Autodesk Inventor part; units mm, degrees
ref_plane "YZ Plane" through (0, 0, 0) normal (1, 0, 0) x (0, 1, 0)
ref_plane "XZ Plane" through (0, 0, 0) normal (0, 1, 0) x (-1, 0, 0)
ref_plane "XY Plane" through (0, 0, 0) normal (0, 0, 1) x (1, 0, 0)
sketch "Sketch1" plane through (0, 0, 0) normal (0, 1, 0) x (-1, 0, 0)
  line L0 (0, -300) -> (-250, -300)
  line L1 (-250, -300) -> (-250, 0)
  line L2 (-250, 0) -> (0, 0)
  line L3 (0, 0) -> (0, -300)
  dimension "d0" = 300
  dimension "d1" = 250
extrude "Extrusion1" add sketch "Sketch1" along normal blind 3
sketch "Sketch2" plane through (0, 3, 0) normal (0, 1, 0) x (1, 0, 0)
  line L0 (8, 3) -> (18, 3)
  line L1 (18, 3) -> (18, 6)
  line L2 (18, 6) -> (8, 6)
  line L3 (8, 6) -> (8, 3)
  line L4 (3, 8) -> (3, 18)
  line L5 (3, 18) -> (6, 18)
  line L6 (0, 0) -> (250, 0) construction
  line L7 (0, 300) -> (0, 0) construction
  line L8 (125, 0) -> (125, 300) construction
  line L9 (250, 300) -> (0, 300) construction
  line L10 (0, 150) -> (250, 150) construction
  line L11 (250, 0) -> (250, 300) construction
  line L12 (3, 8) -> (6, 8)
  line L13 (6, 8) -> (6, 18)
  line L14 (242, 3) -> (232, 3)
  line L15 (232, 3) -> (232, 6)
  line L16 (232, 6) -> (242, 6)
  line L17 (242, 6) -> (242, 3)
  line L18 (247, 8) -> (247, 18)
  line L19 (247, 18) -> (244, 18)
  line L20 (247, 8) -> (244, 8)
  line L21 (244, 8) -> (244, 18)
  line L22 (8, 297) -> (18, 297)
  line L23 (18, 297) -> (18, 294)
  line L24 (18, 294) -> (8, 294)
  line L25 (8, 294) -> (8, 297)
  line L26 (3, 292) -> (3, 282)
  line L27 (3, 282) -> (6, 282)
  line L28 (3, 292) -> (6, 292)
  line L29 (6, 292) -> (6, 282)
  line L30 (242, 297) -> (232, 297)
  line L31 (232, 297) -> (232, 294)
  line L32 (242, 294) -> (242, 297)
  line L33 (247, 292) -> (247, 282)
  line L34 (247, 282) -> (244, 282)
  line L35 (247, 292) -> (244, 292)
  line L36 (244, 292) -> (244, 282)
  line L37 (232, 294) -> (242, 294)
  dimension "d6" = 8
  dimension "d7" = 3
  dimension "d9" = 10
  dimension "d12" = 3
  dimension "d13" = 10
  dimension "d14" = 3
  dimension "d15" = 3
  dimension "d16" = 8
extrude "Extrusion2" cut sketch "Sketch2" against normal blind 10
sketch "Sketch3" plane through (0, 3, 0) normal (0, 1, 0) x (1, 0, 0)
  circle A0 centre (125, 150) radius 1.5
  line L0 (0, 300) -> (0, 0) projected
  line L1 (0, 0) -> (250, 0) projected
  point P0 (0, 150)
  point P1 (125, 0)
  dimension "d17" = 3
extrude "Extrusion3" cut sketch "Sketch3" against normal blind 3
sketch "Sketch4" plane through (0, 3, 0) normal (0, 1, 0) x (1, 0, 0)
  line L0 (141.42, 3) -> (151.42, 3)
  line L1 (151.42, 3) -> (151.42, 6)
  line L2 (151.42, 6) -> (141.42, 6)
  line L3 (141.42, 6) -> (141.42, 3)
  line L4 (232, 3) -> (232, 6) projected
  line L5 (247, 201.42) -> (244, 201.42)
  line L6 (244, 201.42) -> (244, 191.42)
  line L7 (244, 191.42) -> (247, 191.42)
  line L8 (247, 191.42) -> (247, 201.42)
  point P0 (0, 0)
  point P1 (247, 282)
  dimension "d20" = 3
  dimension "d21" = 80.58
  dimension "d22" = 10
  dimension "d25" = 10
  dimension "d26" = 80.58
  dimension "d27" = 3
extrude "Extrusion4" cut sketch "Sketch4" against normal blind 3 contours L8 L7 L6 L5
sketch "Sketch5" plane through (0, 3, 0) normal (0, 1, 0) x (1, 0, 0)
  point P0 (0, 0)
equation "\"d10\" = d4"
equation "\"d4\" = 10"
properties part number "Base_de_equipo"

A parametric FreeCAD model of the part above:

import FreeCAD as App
import Part
import Sketcher
from FreeCAD import Vector
Q = App.Units.Quantity

doc = App.newDocument("Part")
body = doc.addObject("PartDesign::Body", "Body")

sketch1 = doc.addObject("Sketcher::SketchObject", "Sketch")
body.addObject(sketch1)
sketch1.AttachmentSupport = (doc.XZ_Plane, [""])
sketch1.MapMode = "FlatFace"
sketch1.addGeometry([
    Part.LineSegment(Vector(250, -300, 0), Vector(0, -300, 0)),
    Part.LineSegment(Vector(0, -300, 0), Vector(0, 0, 0)),
    Part.LineSegment(Vector(0, 0, 0), Vector(250, 0, 0)),
    Part.LineSegment(Vector(250, 0, 0), Vector(250, -300, 0)),
], False)
sketch1.addConstraint([
    Sketcher.Constraint("Coincident", 0, 2, 1, 1),
    Sketcher.Constraint("Coincident", 1, 2, 2, 1),
    Sketcher.Constraint("Coincident", 2, 2, 3, 1),
    Sketcher.Constraint("Coincident", 3, 2, 0, 1),
    Sketcher.Constraint("Horizontal", 0),
    Sketcher.Constraint("Vertical", 1),
    Sketcher.Constraint("Horizontal", 2),
    Sketcher.Constraint("Vertical", 3),
    Sketcher.Constraint("Coincident", 1, 2, -1, 1),
    Sketcher.Constraint("DistanceX", 0, 2, 0, 1, Q("250 mm")),
    Sketcher.Constraint("DistanceY", 1, 1, 1, 2, Q("300 mm")),
])
pad1 = doc.addObject("PartDesign::Pad", "Pad")
body.addObject(pad1)
pad1.Profile = sketch1
pad1.Length = 3
pad1.Reversed = True

sketch2 = doc.addObject("Sketcher::SketchObject", "Sketch001")
body.addObject(sketch2)
sketch2.AttachmentSupport = (doc.XZ_Plane, [""])
sketch2.MapMode = "FlatFace"
sketch2.AttachmentOffset = App.Placement(Vector(0, 0, -3), App.Rotation())
sketch2.addGeometry([
    Part.LineSegment(Vector(8, -6, 0), Vector(8, -3, 0)),
    Part.LineSegment(Vector(8, -3, 0), Vector(18, -3, 0)),
    Part.LineSegment(Vector(18, -3, 0), Vector(18, -6, 0)),
    Part.LineSegment(Vector(18, -6, 0), Vector(8, -6, 0)),
    Part.LineSegment(Vector(3, -18, 0), Vector(3, -8, 0)),
    Part.LineSegment(Vector(3, -8, 0), Vector(6, -8, 0)),
    Part.LineSegment(Vector(6, -8, 0), Vector(6, -18, 0)),
    Part.LineSegment(Vector(6, -18, 0), Vector(3, -18, 0)),
    Part.LineSegment(Vector(232, -3, 0), Vector(242, -3, 0)),
    Part.LineSegment(Vector(242, -3, 0), Vector(242, -6, 0)),
    Part.LineSegment(Vector(242, -6, 0), Vector(232, -6, 0)),
    Part.LineSegment(Vector(232, -6, 0), Vector(232, -3, 0)),
    Part.LineSegment(Vector(244, -8, 0), Vector(247, -8, 0)),
    Part.LineSegment(Vector(247, -8, 0), Vector(247, -18, 0)),
    Part.LineSegment(Vector(247, -18, 0), Vector(244, -18, 0)),
    Part.LineSegment(Vector(244, -18, 0), Vector(244, -8, 0)),
    Part.LineSegment(Vector(18, -297, 0), Vector(8, -297, 0)),
    Part.LineSegment(Vector(8, -297, 0), Vector(8, -294, 0)),
    Part.LineSegment(Vector(8, -294, 0), Vector(18, -294, 0)),
    Part.LineSegment(Vector(18, -294, 0), Vector(18, -297, 0)),
    Part.LineSegment(Vector(6, -292, 0), Vector(3, -292, 0)),
    Part.LineSegment(Vector(3, -292, 0), Vector(3, -282, 0)),
    Part.LineSegment(Vector(3, -282, 0), Vector(6, -282, 0)),
    Part.LineSegment(Vector(6, -282, 0), Vector(6, -292, 0)),
    Part.LineSegment(Vector(242, -294, 0), Vector(242, -297, 0)),
    Part.LineSegment(Vector(242, -297, 0), Vector(232, -297, 0)),
    Part.LineSegment(Vector(232, -297, 0), Vector(232, -294, 0)),
    Part.LineSegment(Vector(232, -294, 0), Vector(242, -294, 0)),
    Part.LineSegment(Vector(247, -282, 0), Vector(247, -292, 0)),
    Part.LineSegment(Vector(247, -292, 0), Vector(244, -292, 0)),
    Part.LineSegment(Vector(244, -292, 0), Vector(244, -282, 0)),
    Part.LineSegment(Vector(244, -282, 0), Vector(247, -282, 0)),
], False)
sketch2.addConstraint([
    Sketcher.Constraint("Coincident", 0, 2, 1, 1),
    Sketcher.Constraint("Coincident", 1, 2, 2, 1),
    Sketcher.Constraint("Coincident", 2, 2, 3, 1),
    Sketcher.Constraint("Coincident", 3, 2, 0, 1),
    Sketcher.Constraint("Coincident", 4, 2, 5, 1),
    Sketcher.Constraint("Coincident", 5, 2, 6, 1),
    Sketcher.Constraint("Coincident", 6, 2, 7, 1),
    Sketcher.Constraint("Coincident", 7, 2, 4, 1),
    Sketcher.Constraint("Coincident", 8, 2, 9, 1),
    Sketcher.Constraint("Coincident", 9, 2, 10, 1),
    Sketcher.Constraint("Coincident", 10, 2, 11, 1),
    Sketcher.Constraint("Coincident", 11, 2, 8, 1),
    Sketcher.Constraint("Coincident", 12, 2, 13, 1),
    Sketcher.Constraint("Coincident", 13, 2, 14, 1),
    Sketcher.Constraint("Coincident", 14, 2, 15, 1),
    Sketcher.Constraint("Coincident", 15, 2, 12, 1),
    Sketcher.Constraint("Coincident", 16, 2, 17, 1),
    Sketcher.Constraint("Coincident", 17, 2, 18, 1),
    Sketcher.Constraint("Coincident", 18, 2, 19, 1),
    Sketcher.Constraint("Coincident", 19, 2, 16, 1),
    Sketcher.Constraint("Coincident", 20, 2, 21, 1),
    Sketcher.Constraint("Coincident", 21, 2, 22, 1),
    Sketcher.Constraint("Coincident", 22, 2, 23, 1),
    Sketcher.Constraint("Coincident", 23, 2, 20, 1),
    Sketcher.Constraint("Coincident", 24, 2, 25, 1),
    Sketcher.Constraint("Coincident", 25, 2, 26, 1),
    Sketcher.Constraint("Coincident", 26, 2, 27, 1),
    Sketcher.Constraint("Coincident", 27, 2, 24, 1),
    Sketcher.Constraint("Coincident", 28, 2, 29, 1),
    Sketcher.Constraint("Coincident", 29, 2, 30, 1),
    Sketcher.Constraint("Coincident", 30, 2, 31, 1),
    Sketcher.Constraint("Coincident", 31, 2, 28, 1),
    Sketcher.Constraint("Vertical", 0),
    Sketcher.Constraint("Horizontal", 1),
    Sketcher.Constraint("Vertical", 2),
    Sketcher.Constraint("Horizontal", 3),
    Sketcher.Constraint("Vertical", 4),
    Sketcher.Constraint("Horizontal", 5),
    Sketcher.Constraint("Vertical", 6),
    Sketcher.Constraint("Horizontal", 7),
    Sketcher.Constraint("Horizontal", 8),
    Sketcher.Constraint("Vertical", 9),
    Sketcher.Constraint("Horizontal", 10),
    Sketcher.Constraint("Vertical", 11),
    Sketcher.Constraint("Horizontal", 12),
    Sketcher.Constraint("Vertical", 13),
    Sketcher.Constraint("Horizontal", 14),
    Sketcher.Constraint("Vertical", 15),
    Sketcher.Constraint("Horizontal", 16),
    Sketcher.Constraint("Vertical", 17),
    Sketcher.Constraint("Horizontal", 18),
    Sketcher.Constraint("Vertical", 19),
    Sketcher.Constraint("Horizontal", 20),
    Sketcher.Constraint("Vertical", 21),
    Sketcher.Constraint("Horizontal", 22),
    Sketcher.Constraint("Vertical", 23),
    Sketcher.Constraint("Vertical", 24),
    Sketcher.Constraint("Horizontal", 25),
    Sketcher.Constraint("Vertical", 26),
    Sketcher.Constraint("Horizontal", 27),
    Sketcher.Constraint("Vertical", 28),
    Sketcher.Constraint("Horizontal", 29),
    Sketcher.Constraint("Vertical", 30),
    Sketcher.Constraint("Horizontal", 31),
    Sketcher.Constraint("Horizontal", 1, 2, 8, 2),
    Sketcher.Constraint("Horizontal", 3, 2, 9, 2),
    Sketcher.Constraint("Horizontal", 5, 2, 12, 2),
    Sketcher.Constraint("Horizontal", 7, 2, 13, 2),
    Sketcher.Constraint("Horizontal", 19, 2, 24, 2),
    Sketcher.Constraint("Horizontal", 18, 2, 26, 2),
    Sketcher.Constraint("Horizontal", 23, 2, 28, 2),
    Sketcher.Constraint("Horizontal", 22, 2, 30, 2),
    Sketcher.Constraint("Vertical", 3, 2, 16, 2),
    Sketcher.Constraint("Vertical", 2, 2, 18, 2),
    Sketcher.Constraint("Vertical", 7, 2, 20, 2),
    Sketcher.Constraint("Vertical", 6, 2, 22, 2),
    Sketcher.Constraint("Vertical", 9, 2, 24, 2),
    Sketcher.Constraint("Vertical", 11, 2, 25, 2),
    Sketcher.Constraint("Vertical", 13, 2, 28, 2),
    Sketcher.Constraint("Vertical", 15, 2, 29, 2),
    Sketcher.Constraint("Equal", 3, 8),
    Sketcher.Constraint("Equal", 7, 12),
    Sketcher.Constraint("Equal", 31, 0),
    Sketcher.Constraint("Equal", 27, 4),
    Sketcher.Constraint("Equal", 11, 17),
    Sketcher.Constraint("Equal", 15, 21),
    Sketcher.Constraint("DistanceX", 1, 1, 1, 2, Q("10 mm")),
    Sketcher.Constraint("DistanceX", 5, 1, 5, 2, Q("3 mm")),
    Sketcher.Constraint("DistanceX", -1, 1, 0, 2, Q("8 mm")),
    Sketcher.Constraint("DistanceY", 0, 2, -1, 1, Q("3 mm")),
    Sketcher.Constraint("DistanceX", -1, 1, 4, 2, Q("3 mm")),
    Sketcher.Constraint("DistanceY", 4, 2, -1, 1, Q("8 mm")),
    Sketcher.Constraint("DistanceX", -1, 1, 8, 2, Q("242 mm")),
    Sketcher.Constraint("DistanceX", -1, 1, 12, 2, Q("247 mm")),
    Sketcher.Constraint("DistanceY", 16, 2, -1, 1, Q("297 mm")),
    Sketcher.Constraint("DistanceY", 20, 2, -1, 1, Q("292 mm")),
])
pocket1 = doc.addObject("PartDesign::Pocket", "Pocket")
body.addObject(pocket1)
pocket1.Profile = sketch2
pocket1.Length = 10
pocket1.Reversed = True

sketch3 = doc.addObject("Sketcher::SketchObject", "Sketch002")
body.addObject(sketch3)
sketch3.AttachmentSupport = (doc.XZ_Plane, [""])
sketch3.MapMode = "FlatFace"
sketch3.AttachmentOffset = App.Placement(Vector(0, 0, -3), App.Rotation())
sketch3.addGeometry(Part.Circle(Vector(125, -150, 0), Vector(0, 0, 1), 1.5), False)
sketch3.addConstraint([
    Sketcher.Constraint("Diameter", 0, Q("3 mm")),
    Sketcher.Constraint("DistanceX", -1, 1, 0, 3, Q("125 mm")),
    Sketcher.Constraint("DistanceY", 0, 3, -1, 1, Q("150 mm")),
])
pocket2 = doc.addObject("PartDesign::Pocket", "Pocket001")
body.addObject(pocket2)
pocket2.Profile = sketch3
pocket2.Length = 3
pocket2.Reversed = True

sketch4 = doc.addObject("Sketcher::SketchObject", "Sketch003")
body.addObject(sketch4)
sketch4.AttachmentSupport = (doc.XZ_Plane, [""])
sketch4.MapMode = "FlatFace"
sketch4.AttachmentOffset = App.Placement(Vector(0, 0, -3), App.Rotation())
sketch4.addGeometry([
    Part.LineSegment(Vector(247, -191.42, 0), Vector(247, -201.42, 0)),
    Part.LineSegment(Vector(247, -201.42, 0), Vector(244, -201.42, 0)),
    Part.LineSegment(Vector(244, -201.42, 0), Vector(244, -191.42, 0)),
    Part.LineSegment(Vector(244, -191.42, 0), Vector(247, -191.42, 0)),
], False)
sketch4.addConstraint([
    Sketcher.Constraint("Coincident", 0, 2, 1, 1),
    Sketcher.Constraint("Coincident", 1, 2, 2, 1),
    Sketcher.Constraint("Coincident", 2, 2, 3, 1),
    Sketcher.Constraint("Coincident", 3, 2, 0, 1),
    Sketcher.Constraint("Vertical", 0),
    Sketcher.Constraint("Horizontal", 1),
    Sketcher.Constraint("Vertical", 2),
    Sketcher.Constraint("Horizontal", 3),
    Sketcher.Constraint("DistanceX", 1, 2, 1, 1, Q("3 mm")),
    Sketcher.Constraint("DistanceY", 0, 2, 0, 1, Q("10 mm")),
    Sketcher.Constraint("DistanceX", -1, 1, 0, 2, Q("247 mm")),
    Sketcher.Constraint("DistanceY", 0, 2, -1, 1, Q("201.42 mm")),
])
pocket3 = doc.addObject("PartDesign::Pocket", "Pocket002")
body.addObject(pocket3)
pocket3.Profile = sketch4
pocket3.Length = 3
pocket3.Reversed = True

doc.recompute()
